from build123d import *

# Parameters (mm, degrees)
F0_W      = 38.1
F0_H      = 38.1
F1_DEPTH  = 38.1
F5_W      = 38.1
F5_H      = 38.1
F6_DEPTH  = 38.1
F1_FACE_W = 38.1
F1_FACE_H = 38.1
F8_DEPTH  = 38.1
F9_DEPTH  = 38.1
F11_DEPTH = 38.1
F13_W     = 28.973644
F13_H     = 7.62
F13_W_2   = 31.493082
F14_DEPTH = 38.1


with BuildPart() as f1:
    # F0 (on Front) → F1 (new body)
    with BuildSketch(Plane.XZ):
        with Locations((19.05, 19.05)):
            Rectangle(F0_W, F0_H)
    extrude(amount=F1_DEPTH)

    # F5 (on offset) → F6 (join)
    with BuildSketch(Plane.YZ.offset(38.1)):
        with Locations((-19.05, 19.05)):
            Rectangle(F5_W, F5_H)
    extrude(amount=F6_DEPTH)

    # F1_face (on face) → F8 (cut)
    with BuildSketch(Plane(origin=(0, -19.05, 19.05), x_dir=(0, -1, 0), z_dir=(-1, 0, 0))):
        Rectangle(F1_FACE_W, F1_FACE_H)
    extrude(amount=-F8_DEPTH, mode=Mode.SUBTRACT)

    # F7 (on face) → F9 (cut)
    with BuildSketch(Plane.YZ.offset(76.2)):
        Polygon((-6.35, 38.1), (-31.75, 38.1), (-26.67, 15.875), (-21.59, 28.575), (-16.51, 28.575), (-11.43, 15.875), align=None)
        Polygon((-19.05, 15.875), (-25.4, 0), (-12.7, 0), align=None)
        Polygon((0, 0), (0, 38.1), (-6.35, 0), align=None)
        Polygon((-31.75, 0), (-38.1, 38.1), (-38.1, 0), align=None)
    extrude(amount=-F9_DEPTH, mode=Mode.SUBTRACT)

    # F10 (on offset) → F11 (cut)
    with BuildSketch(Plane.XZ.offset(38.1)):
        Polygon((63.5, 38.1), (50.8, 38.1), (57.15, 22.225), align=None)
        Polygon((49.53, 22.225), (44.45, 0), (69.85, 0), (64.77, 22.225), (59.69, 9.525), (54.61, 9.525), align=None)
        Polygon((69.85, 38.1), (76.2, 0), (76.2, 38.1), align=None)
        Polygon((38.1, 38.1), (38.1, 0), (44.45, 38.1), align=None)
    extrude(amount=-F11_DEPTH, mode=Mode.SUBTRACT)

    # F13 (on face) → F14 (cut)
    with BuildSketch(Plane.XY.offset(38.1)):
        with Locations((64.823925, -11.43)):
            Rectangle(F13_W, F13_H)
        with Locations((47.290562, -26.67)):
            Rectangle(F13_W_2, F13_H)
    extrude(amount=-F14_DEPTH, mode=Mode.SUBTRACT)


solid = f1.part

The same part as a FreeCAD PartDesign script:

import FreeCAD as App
import Part
import Sketcher
from FreeCAD import Vector
Q = App.Units.Quantity

doc = App.newDocument("Part")
body = doc.addObject("PartDesign::Body", "Body")

sketch1 = body.newObject("Sketcher::SketchObject", "Sketch")
sketch1.AttachmentSupport = (doc.getObject("XZ_Plane"), [""])
sketch1.MapMode = "FlatFace"
sketch1.addGeometry([
    Part.LineSegment(Vector(0, 38.1, 0), Vector(0, 0, 0)),
    Part.LineSegment(Vector(0, 0, 0), Vector(38.1, 0, 0)),
    Part.LineSegment(Vector(38.1, 0, 0), Vector(38.1, 38.1, 0)),
    Part.LineSegment(Vector(38.1, 38.1, 0), Vector(0, 38.1, 0)),
], False)
sketch1.addConstraint([
    Sketcher.Constraint("Coincident", 0, 2, 1, 1),
    Sketcher.Constraint("Coincident", 1, 2, 2, 1),
    Sketcher.Constraint("Coincident", 2, 2, 3, 1),
    Sketcher.Constraint("Coincident", 3, 2, 0, 1),
    Sketcher.Constraint("Vertical", 0),
    Sketcher.Constraint("Horizontal", 1),
    Sketcher.Constraint("Vertical", 2),
    Sketcher.Constraint("Horizontal", 3),
    Sketcher.Constraint("Coincident", 0, 2, -1, 1),
    Sketcher.Constraint("Equal", 3, 0),
    Sketcher.Constraint("DistanceX", 1, 1, 1, 2, Q("1.5 in")),
])
pad1 = body.newObject("PartDesign::Pad", "Pad")
pad1.Profile = sketch1
pad1.Length = Q("1.5 in")

sketch2 = body.newObject("Sketcher::SketchObject", "Sketch001")
sketch2.AttachmentSupport = (doc.getObject("YZ_Plane"), [""])
sketch2.MapMode = "FlatFace"
sketch2.AttachmentOffset = App.Placement(Vector(0, 0, 1.5 * 25.4), App.Rotation())
sketch2.addGeometry([
    Part.LineSegment(Vector(-38.1, 38.1, 0), Vector(-38.1, 0, 0)),
    Part.LineSegment(Vector(-38.1, 0, 0), Vector(0, 0, 0)),
    Part.LineSegment(Vector(0, 0, 0), Vector(0, 38.1, 0)),
    Part.LineSegment(Vector(0, 38.1, 0), Vector(-38.1, 38.1, 0)),
], False)
sketch2.addConstraint([
    Sketcher.Constraint("Coincident", 0, 2, 1, 1),
    Sketcher.Constraint("Coincident", 1, 2, 2, 1),
    Sketcher.Constraint("Coincident", 2, 2, 3, 1),
    Sketcher.Constraint("Coincident", 3, 2, 0, 1),
    Sketcher.Constraint("Vertical", 0),
    Sketcher.Constraint("Horizontal", 1),
    Sketcher.Constraint("Vertical", 2),
    Sketcher.Constraint("Horizontal", 3),
    Sketcher.Constraint("Coincident", 1, 2, -1, 1),
    Sketcher.Constraint("Equal", 3, 0),
    Sketcher.Constraint("DistanceX", 1, 1, 1, 2, Q("1.5 in")),
])
pad2 = body.newObject("PartDesign::Pad", "Pad001")
pad2.Profile = sketch2
pad2.Length = Q("1.5 in")

sketch3 = body.newObject("Sketcher::SketchObject", "Sketch002")
sketch3.AttachmentSupport = (doc.getObject("YZ_Plane"), [""])
sketch3.MapMode = "FlatFace"
sketch3.addGeometry([
    Part.LineSegment(Vector(0, 38.1, 0), Vector(0, 0, 0)),
    Part.LineSegment(Vector(0, 0, 0), Vector(-38.1, 0, 0)),
    Part.LineSegment(Vector(-38.1, 0, 0), Vector(-38.1, 38.1, 0)),
    Part.LineSegment(Vector(-38.1, 38.1, 0), Vector(0, 38.1, 0)),
], False)
sketch3.addConstraint([
    Sketcher.Constraint("Coincident", 0, 2, 1, 1),
    Sketcher.Constraint("Coincident", 1, 2, 2, 1),
    Sketcher.Constraint("Coincident", 2, 2, 3, 1),
    Sketcher.Constraint("Coincident", 3, 2, 0, 1),
    Sketcher.Constraint("Vertical", 0),
    Sketcher.Constraint("Horizontal", 1),
    Sketcher.Constraint("Vertical", 2),
    Sketcher.Constraint("Horizontal", 3),
    Sketcher.Constraint("Coincident", 0, 2, -1, 1),
    Sketcher.Constraint("Equal", 3, 0),
    Sketcher.Constraint("DistanceX", 1, 2, 1, 1, Q("1.5 in")),
])
pocket1 = body.newObject("PartDesign::Pocket", "Pocket")
pocket1.Profile = sketch3
pocket1.Length = Q("1.5 in")
pocket1.Reversed = True

sketch4 = body.newObject("Sketcher::SketchObject", "Sketch003")
sketch4.AttachmentSupport = (doc.getObject("YZ_Plane"), [""])
sketch4.MapMode = "FlatFace"
sketch4.AttachmentOffset = App.Placement(Vector(0, 0, 3 * 25.4), App.Rotation())
sketch4.addGeometry([
    Part.LineSegment(Vector(-6.35, 38.1, 0), Vector(-31.75, 38.1, 0)),
    Part.LineSegment(Vector(-31.75, 38.1, 0), Vector(-26.67, 15.875, 0)),
    Part.LineSegment(Vector(-26.67, 15.875, 0), Vector(-21.59, 28.575, 0)),
    Part.LineSegment(Vector(-21.59, 28.575, 0), Vector(-16.51, 28.575, 0)),
    Part.LineSegment(Vector(-16.51, 28.575, 0), Vector(-11.43, 15.875, 0)),
    Part.LineSegment(Vector(-11.43, 15.875, 0), Vector(-6.35, 38.1, 0)),
    Part.LineSegment(Vector(-19.05, 15.875, 0), Vector(-25.4, 0, 0)),
    Part.LineSegment(Vector(-25.4, 0, 0), Vector(-12.7, 0, 0)),
    Part.LineSegment(Vector(-12.7, 0, 0), Vector(-19.05, 15.875, 0)),
    Part.LineSegment(Vector(0, 0, 0), Vector(0, 38.1, 0)),
    Part.LineSegment(Vector(0, 38.1, 0), Vector(-6.35, 0, 0)),
    Part.LineSegment(Vector(-6.35, 0, 0), Vector(0, 0, 0)),
    Part.LineSegment(Vector(-31.75, 0, 0), Vector(-38.1, 38.1, 0)),
    Part.LineSegment(Vector(-38.1, 38.1, 0), Vector(-38.1, 0, 0)),
    Part.LineSegment(Vector(-38.1, 0, 0), Vector(-31.75, 0, 0)),
], False)
sketch4.addConstraint([
    Sketcher.Constraint("Coincident", 0, 2, 1, 1),
    Sketcher.Constraint("Coincident", 1, 2, 2, 1),
    Sketcher.Constraint("Coincident", 2, 2, 3, 1),
    Sketcher.Constraint("Coincident", 3, 2, 4, 1),
    Sketcher.Constraint("Coincident", 4, 2, 5, 1),
    Sketcher.Constraint("Coincident", 5, 2, 0, 1),
    Sketcher.Constraint("Coincident", 6, 2, 7, 1),
    Sketcher.Constraint("Coincident", 7, 2, 8, 1),
    Sketcher.Constraint("Coincident", 8, 2, 6, 1),
    Sketcher.Constraint("Coincident", 9, 2, 10, 1),
    Sketcher.Constraint("Coincident", 10, 2, 11, 1),
    Sketcher.Constraint("Coincident", 11, 2, 9, 1),
    Sketcher.Constraint("Coincident", 12, 2, 13, 1),
    Sketcher.Constraint("Coincident", 13, 2, 14, 1),
    Sketcher.Constraint("Coincident", 14, 2, 12, 1),
    Sketcher.Constraint("Horizontal", 0),
    Sketcher.Constraint("Horizontal", 3),
    Sketcher.Constraint("Horizontal", 7),
    Sketcher.Constraint("Vertical", 9),
    Sketcher.Constraint("Horizontal", 11),
    Sketcher.Constraint("Vertical", 13),
    Sketcher.Constraint("Horizontal", 14),
    Sketcher.Constraint("Coincident", 11, 2, -1, 1),
    Sketcher.Constraint("PointOnObject", 6, 2, -1),
    Sketcher.Constraint("PointOnObject", 13, 2, -1),
    Sketcher.Constraint("Parallel", 2, 6),
    Sketcher.Constraint("Parallel", 4, 8),
    Sketcher.Constraint("Horizontal", 1, 2, 4, 2),
    Sketcher.Constraint("Horizontal", 4, 2, 8, 2),
    Sketcher.Constraint("Horizontal", 5, 2, 9, 2),
    Sketcher.Constraint("Horizontal", 9, 2, 12, 2),
    Sketcher.Constraint("Vertical", 5, 2, 10, 2),
    Sketcher.Constraint("Vertical", 0, 2, 14, 2),
    Sketcher.Constraint("Equal", 11, 14),
    Sketcher.Constraint("Equal", 2, 4),
    Sketcher.Constraint("Equal", 1, 5),
    Sketcher.Constraint("DistanceX", 0, 2, 0, 1, Q("1 in")),
    Sketcher.Constraint("DistanceX", 3, 1, 3, 2, Q("0.2 in")),
    Sketcher.Constraint("DistanceX", 7, 1, 7, 2, Q("0.5 in")),
    Sketcher.Constraint("DistanceY", 9, 1, 9, 2, Q("1.5 in")),
    Sketcher.Constraint("DistanceX", 6, 2, -1, 1, Q("1 in")),
    Sketcher.Constraint("DistanceX", 13, 2, 7, 2, Q("1 in")),
    Sketcher.Constraint("DistanceX", 0, 2, 1, 2, Q("0.2 in")),
    Sketcher.Constraint("DistanceY", 1, 2, 2, 2, Q("0.5 in")),
])
pocket2 = body.newObject("PartDesign::Pocket", "Pocket001")
pocket2.Profile = sketch4
pocket2.Length = Q("1.5 in")

sketch5 = body.newObject("Sketcher::SketchObject", "Sketch004")
sketch5.AttachmentSupport = (doc.getObject("XZ_Plane"), [""])
sketch5.MapMode = "FlatFace"
sketch5.AttachmentOffset = App.Placement(Vector(0, 0, 1.5 * 25.4), App.Rotation())
sketch5.addGeometry([
    Part.LineSegment(Vector(63.5, 38.1, 0), Vector(50.8, 38.1, 0)),
    Part.LineSegment(Vector(50.8, 38.1, 0), Vector(57.15, 22.225, 0)),
    Part.LineSegment(Vector(57.15, 22.225, 0), Vector(63.5, 38.1, 0)),
    Part.LineSegment(Vector(49.53, 22.225, 0), Vector(44.45, 0, 0)),
    Part.LineSegment(Vector(44.45, 0, 0), Vector(69.85, 0, 0)),
    Part.LineSegment(Vector(69.85, 0, 0), Vector(64.77, 22.225, 0)),
    Part.LineSegment(Vector(64.77, 22.225, 0), Vector(59.69, 9.525, 0)),
    Part.LineSegment(Vector(59.69, 9.525, 0), Vector(54.61, 9.525, 0)),
    Part.LineSegment(Vector(54.61, 9.525, 0), Vector(49.53, 22.225, 0)),
    Part.LineSegment(Vector(69.85, 38.1, 0), Vector(76.2, 0, 0)),
    Part.LineSegment(Vector(76.2, 0, 0), Vector(76.2, 38.1, 0)),
    Part.LineSegment(Vector(76.2, 38.1, 0), Vector(69.85, 38.1, 0)),
    Part.LineSegment(Vector(38.1, 38.1, 0), Vector(38.1, 0, 0)),
    Part.LineSegment(Vector(38.1, 0, 0), Vector(44.45, 38.1, 0)),
    Part.LineSegment(Vector(44.45, 38.1, 0), Vector(38.1, 38.1, 0)),
], False)
sketch5.addConstraint([
    Sketcher.Constraint("Coincident", 0, 2, 1, 1),
    Sketcher.Constraint("Coincident", 1, 2, 2, 1),
    Sketcher.Constraint("Coincident", 2, 2, 0, 1),
    Sketcher.Constraint("Coincident", 3, 2, 4, 1),
    Sketcher.Constraint("Coincident", 4, 2, 5, 1),
    Sketcher.Constraint("Coincident", 5, 2, 6, 1),
    Sketcher.Constraint("Coincident", 6, 2, 7, 1),
    Sketcher.Constraint("Coincident", 7, 2, 8, 1),
    Sketcher.Constraint("Coincident", 8, 2, 3, 1),
    Sketcher.Constraint("Coincident", 9, 2, 10, 1),
    Sketcher.Constraint("Coincident", 10, 2, 11, 1),
    Sketcher.Constraint("Coincident", 11, 2, 9, 1),
    Sketcher.Constraint("Coincident", 12, 2, 13, 1),
    Sketcher.Constraint("Coincident", 13, 2, 14, 1),
    Sketcher.Constraint("Coincident", 14, 2, 12, 1),
    Sketcher.Constraint("Horizontal", 0),
    Sketcher.Constraint("Horizontal", 4),
    Sketcher.Constraint("Horizontal", 7),
    Sketcher.Constraint("Vertical", 10),
    Sketcher.Constraint("Horizontal", 11),
    Sketcher.Constraint("Vertical", 12),
    Sketcher.Constraint("Horizontal", 14),
    Sketcher.Constraint("PointOnObject", 3, 2, -1),
    Sketcher.Constraint("PointOnObject", 9, 2, -1),
    Sketcher.Constraint("PointOnObject", 12, 2, -1),
    Sketcher.Constraint("Parallel", 2, 6),
    Sketcher.Constraint("Parallel", 1, 8),
    Sketcher.Constraint("Horizontal", 1, 2, 5, 2),
    Sketcher.Constraint("Horizontal", 5, 2, 8, 2),
    Sketcher.Constraint("Horizontal", 2, 2, 10, 2),
    Sketcher.Constraint("Horizontal", 11, 2, 13, 2),
    Sketcher.Constraint("Vertical", 4, 2, 11, 2),
    Sketcher.Constraint("Vertical", 3, 2, 13, 2),
    Sketcher.Constraint("Equal", 11, 14),
    Sketcher.Constraint("Equal", 1, 2),
    Sketcher.Constraint("Equal", 3, 5),
    Sketcher.Constraint("DistanceX", 4, 1, 4, 2, Q("1 in")),
    Sketcher.Constraint("DistanceX", 0, 2, 0, 1, Q("0.5 in")),
    Sketcher.Constraint("DistanceX", 7, 2, 7, 1, Q("0.2 in")),
    Sketcher.Constraint("DistanceY", 10, 1, 10, 2, Q("1.5 in")),
    Sketcher.Constraint("DistanceX", -1, 1, 0, 2, Q("2 in")),
    Sketcher.Constraint("DistanceX", -1, 1, 9, 2, Q("3 in")),
    Sketcher.Constraint("DistanceX", 14, 2, 2, 2, Q("1 in")),
    Sketcher.Constraint("DistanceX", 1, 2, 5, 2, Q("0.3 in")),
    Sketcher.Constraint("DistanceY", 6, 2, 1, 2, Q("0.5 in")),
])
pocket3 = body.newObject("PartDesign::Pocket", "Pocket002")
pocket3.Profile = sketch5
pocket3.Length = Q("1.5 in")

sketch6 = body.newObject("Sketcher::SketchObject", "Sketch005")
sketch6.AttachmentSupport = (doc.getObject("XY_Plane"), [""])
sketch6.MapMode = "FlatFace"
sketch6.AttachmentOffset = App.Placement(Vector(0, 0, 1.5 * 25.4), App.Rotation())
sketch6.addGeometry([
    Part.LineSegment(Vector(50.337103, -7.62, 0), Vector(50.337103, -15.24, 0)),
    Part.LineSegment(Vector(50.337103, -15.24, 0), Vector(79.310747, -15.24, 0)),
    Part.LineSegment(Vector(79.310747, -15.24, 0), Vector(79.310747, -7.62, 0)),
    Part.LineSegment(Vector(79.310747, -7.62, 0), Vector(50.337103, -7.62, 0)),
    Part.LineSegment(Vector(31.544021, -22.86, 0), Vector(31.544021, -30.48, 0)),
    Part.LineSegment(Vector(31.544021, -30.48, 0), Vector(63.037103, -30.48, 0)),
    Part.LineSegment(Vector(63.037103, -30.48, 0), Vector(63.037103, -22.86, 0)),
    Part.LineSegment(Vector(63.037103, -22.86, 0), Vector(31.544021, -22.86, 0)),
], False)
sketch6.addConstraint([
    Sketcher.Constraint("Coincident", 0, 2, 1, 1),
    Sketcher.Constraint("Coincident", 1, 2, 2, 1),
    Sketcher.Constraint("Coincident", 2, 2, 3, 1),
    Sketcher.Constraint("Coincident", 3, 2, 0, 1),
    Sketcher.Constraint("Coincident", 4, 2, 5, 1),
    Sketcher.Constraint("Coincident", 5, 2, 6, 1),
    Sketcher.Constraint("Coincident", 6, 2, 7, 1),
    Sketcher.Constraint("Coincident", 7, 2, 4, 1),
    Sketcher.Constraint("Vertical", 0),
    Sketcher.Constraint("Horizontal", 1),
    Sketcher.Constraint("Vertical", 2),
    Sketcher.Constraint("Horizontal", 3),
    Sketcher.Constraint("Vertical", 4),
    Sketcher.Constraint("Horizontal", 5),
    Sketcher.Constraint("Vertical", 6),
    Sketcher.Constraint("Horizontal", 7),
    Sketcher.Constraint("Equal", 2, 4),
    Sketcher.Constraint("DistanceY", 0, 2, 0, 1, Q("0.3 in")),
    Sketcher.Constraint("DistanceY", 0, 2, -1, 1, Q("0.6 in")),
    Sketcher.Constraint("DistanceY", 4, 2, -1, 1, Q("1.2 in")),
    Sketcher.Constraint("DistanceX", 0, 2, 5, 2, Q("0.5 in")),
    Sketcher.Constraint("DistanceX", 1, 1, 1, 2, Q("28.973644 mm")),
    Sketcher.Constraint("DistanceX", 5, 1, 5, 2, Q("31.493082 mm")),
    Sketcher.Constraint("DistanceX", -1, 1, 4, 2, Q("31.544021 mm")),
])
pocket4 = body.newObject("PartDesign::Pocket", "Pocket003")
pocket4.Profile = sketch6
pocket4.Length = Q("1.5 in")

doc.recompute()
